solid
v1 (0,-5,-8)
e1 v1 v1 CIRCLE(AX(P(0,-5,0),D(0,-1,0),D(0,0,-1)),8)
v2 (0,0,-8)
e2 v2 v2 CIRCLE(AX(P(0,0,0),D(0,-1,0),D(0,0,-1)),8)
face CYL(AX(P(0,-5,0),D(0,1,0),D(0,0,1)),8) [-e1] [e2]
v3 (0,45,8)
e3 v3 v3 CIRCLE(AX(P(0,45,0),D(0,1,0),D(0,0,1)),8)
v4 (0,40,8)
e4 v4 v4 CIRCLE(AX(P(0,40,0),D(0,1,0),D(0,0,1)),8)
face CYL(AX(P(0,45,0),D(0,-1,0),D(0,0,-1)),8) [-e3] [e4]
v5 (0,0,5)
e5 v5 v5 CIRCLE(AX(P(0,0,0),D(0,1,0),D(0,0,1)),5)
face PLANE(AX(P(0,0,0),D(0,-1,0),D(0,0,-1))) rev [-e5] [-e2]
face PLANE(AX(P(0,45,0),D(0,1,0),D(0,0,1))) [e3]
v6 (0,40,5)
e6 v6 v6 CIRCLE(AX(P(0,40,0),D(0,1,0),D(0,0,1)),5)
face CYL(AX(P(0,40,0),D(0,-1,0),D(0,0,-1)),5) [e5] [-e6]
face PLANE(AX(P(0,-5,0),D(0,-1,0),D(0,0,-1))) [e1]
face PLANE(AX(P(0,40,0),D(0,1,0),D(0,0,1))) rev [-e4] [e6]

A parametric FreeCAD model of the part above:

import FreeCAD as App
import Part
import Sketcher

doc = App.newDocument("Part")
body = doc.addObject("PartDesign::Body", "Body")

# Sketch on XZ plane
sketch1 = body.newObject("Sketcher::SketchObject", "Sketch")
sketch1.AttachmentSupport = (doc.getObject("XZ_Plane"), [""])
sketch1.MapMode = "FlatFace"
sketch1.addGeometry(Part.Circle(App.Vector(0, 0, 0), App.Vector(0, 0, 1), 5), False)
sketch1.addConstraint(Sketcher.Constraint("Coincident", 0, 3, -1, 1))
sketch1.addConstraint(Sketcher.Constraint("Diameter", 0, 10.0))
pad1 = body.newObject("PartDesign::Pad", "Pad")
pad1.Profile = sketch1
pad1.Length = 40
pad1.Reversed = True

# Sketch on XZ plane
sketch2 = body.newObject("Sketcher::SketchObject", "Sketch001")
sketch2.AttachmentSupport = (doc.getObject("XZ_Plane"), [""])
sketch2.MapMode = "FlatFace"
sketch2.addGeometry(Part.Circle(App.Vector(0, 0, 0), App.Vector(0, 0, 1), 8), False)
sketch2.addConstraint(Sketcher.Constraint("Coincident", 0, 3, -1, 1))
sketch2.addConstraint(Sketcher.Constraint("Diameter", 0, 16.0))
pad2 = body.newObject("PartDesign::Pad", "Pad001")
pad2.Profile = sketch2
pad2.Length = 5

# Sketch on XZ plane
sketch3 = body.newObject("Sketcher::SketchObject", "Sketch002")
sketch3.AttachmentSupport = (doc.getObject("XZ_Plane"), [""])
sketch3.MapMode = "FlatFace"
sketch3.AttachmentOffset = App.Placement(App.Vector(0, 0, -40), App.Rotation())
sketch3.addGeometry(Part.Circle(App.Vector(0, 0, 0), App.Vector(0, 0, 1), 8), False)
sketch3.addConstraint(Sketcher.Constraint("Coincident", 0, 3, -1, 1))
sketch3.addConstraint(Sketcher.Constraint("Diameter", 0, 16.0))
pad3 = body.newObject("PartDesign::Pad", "Pad002")
pad3.Profile = sketch3
pad3.Length = 5
pad3.Reversed = True

doc.recompute()
